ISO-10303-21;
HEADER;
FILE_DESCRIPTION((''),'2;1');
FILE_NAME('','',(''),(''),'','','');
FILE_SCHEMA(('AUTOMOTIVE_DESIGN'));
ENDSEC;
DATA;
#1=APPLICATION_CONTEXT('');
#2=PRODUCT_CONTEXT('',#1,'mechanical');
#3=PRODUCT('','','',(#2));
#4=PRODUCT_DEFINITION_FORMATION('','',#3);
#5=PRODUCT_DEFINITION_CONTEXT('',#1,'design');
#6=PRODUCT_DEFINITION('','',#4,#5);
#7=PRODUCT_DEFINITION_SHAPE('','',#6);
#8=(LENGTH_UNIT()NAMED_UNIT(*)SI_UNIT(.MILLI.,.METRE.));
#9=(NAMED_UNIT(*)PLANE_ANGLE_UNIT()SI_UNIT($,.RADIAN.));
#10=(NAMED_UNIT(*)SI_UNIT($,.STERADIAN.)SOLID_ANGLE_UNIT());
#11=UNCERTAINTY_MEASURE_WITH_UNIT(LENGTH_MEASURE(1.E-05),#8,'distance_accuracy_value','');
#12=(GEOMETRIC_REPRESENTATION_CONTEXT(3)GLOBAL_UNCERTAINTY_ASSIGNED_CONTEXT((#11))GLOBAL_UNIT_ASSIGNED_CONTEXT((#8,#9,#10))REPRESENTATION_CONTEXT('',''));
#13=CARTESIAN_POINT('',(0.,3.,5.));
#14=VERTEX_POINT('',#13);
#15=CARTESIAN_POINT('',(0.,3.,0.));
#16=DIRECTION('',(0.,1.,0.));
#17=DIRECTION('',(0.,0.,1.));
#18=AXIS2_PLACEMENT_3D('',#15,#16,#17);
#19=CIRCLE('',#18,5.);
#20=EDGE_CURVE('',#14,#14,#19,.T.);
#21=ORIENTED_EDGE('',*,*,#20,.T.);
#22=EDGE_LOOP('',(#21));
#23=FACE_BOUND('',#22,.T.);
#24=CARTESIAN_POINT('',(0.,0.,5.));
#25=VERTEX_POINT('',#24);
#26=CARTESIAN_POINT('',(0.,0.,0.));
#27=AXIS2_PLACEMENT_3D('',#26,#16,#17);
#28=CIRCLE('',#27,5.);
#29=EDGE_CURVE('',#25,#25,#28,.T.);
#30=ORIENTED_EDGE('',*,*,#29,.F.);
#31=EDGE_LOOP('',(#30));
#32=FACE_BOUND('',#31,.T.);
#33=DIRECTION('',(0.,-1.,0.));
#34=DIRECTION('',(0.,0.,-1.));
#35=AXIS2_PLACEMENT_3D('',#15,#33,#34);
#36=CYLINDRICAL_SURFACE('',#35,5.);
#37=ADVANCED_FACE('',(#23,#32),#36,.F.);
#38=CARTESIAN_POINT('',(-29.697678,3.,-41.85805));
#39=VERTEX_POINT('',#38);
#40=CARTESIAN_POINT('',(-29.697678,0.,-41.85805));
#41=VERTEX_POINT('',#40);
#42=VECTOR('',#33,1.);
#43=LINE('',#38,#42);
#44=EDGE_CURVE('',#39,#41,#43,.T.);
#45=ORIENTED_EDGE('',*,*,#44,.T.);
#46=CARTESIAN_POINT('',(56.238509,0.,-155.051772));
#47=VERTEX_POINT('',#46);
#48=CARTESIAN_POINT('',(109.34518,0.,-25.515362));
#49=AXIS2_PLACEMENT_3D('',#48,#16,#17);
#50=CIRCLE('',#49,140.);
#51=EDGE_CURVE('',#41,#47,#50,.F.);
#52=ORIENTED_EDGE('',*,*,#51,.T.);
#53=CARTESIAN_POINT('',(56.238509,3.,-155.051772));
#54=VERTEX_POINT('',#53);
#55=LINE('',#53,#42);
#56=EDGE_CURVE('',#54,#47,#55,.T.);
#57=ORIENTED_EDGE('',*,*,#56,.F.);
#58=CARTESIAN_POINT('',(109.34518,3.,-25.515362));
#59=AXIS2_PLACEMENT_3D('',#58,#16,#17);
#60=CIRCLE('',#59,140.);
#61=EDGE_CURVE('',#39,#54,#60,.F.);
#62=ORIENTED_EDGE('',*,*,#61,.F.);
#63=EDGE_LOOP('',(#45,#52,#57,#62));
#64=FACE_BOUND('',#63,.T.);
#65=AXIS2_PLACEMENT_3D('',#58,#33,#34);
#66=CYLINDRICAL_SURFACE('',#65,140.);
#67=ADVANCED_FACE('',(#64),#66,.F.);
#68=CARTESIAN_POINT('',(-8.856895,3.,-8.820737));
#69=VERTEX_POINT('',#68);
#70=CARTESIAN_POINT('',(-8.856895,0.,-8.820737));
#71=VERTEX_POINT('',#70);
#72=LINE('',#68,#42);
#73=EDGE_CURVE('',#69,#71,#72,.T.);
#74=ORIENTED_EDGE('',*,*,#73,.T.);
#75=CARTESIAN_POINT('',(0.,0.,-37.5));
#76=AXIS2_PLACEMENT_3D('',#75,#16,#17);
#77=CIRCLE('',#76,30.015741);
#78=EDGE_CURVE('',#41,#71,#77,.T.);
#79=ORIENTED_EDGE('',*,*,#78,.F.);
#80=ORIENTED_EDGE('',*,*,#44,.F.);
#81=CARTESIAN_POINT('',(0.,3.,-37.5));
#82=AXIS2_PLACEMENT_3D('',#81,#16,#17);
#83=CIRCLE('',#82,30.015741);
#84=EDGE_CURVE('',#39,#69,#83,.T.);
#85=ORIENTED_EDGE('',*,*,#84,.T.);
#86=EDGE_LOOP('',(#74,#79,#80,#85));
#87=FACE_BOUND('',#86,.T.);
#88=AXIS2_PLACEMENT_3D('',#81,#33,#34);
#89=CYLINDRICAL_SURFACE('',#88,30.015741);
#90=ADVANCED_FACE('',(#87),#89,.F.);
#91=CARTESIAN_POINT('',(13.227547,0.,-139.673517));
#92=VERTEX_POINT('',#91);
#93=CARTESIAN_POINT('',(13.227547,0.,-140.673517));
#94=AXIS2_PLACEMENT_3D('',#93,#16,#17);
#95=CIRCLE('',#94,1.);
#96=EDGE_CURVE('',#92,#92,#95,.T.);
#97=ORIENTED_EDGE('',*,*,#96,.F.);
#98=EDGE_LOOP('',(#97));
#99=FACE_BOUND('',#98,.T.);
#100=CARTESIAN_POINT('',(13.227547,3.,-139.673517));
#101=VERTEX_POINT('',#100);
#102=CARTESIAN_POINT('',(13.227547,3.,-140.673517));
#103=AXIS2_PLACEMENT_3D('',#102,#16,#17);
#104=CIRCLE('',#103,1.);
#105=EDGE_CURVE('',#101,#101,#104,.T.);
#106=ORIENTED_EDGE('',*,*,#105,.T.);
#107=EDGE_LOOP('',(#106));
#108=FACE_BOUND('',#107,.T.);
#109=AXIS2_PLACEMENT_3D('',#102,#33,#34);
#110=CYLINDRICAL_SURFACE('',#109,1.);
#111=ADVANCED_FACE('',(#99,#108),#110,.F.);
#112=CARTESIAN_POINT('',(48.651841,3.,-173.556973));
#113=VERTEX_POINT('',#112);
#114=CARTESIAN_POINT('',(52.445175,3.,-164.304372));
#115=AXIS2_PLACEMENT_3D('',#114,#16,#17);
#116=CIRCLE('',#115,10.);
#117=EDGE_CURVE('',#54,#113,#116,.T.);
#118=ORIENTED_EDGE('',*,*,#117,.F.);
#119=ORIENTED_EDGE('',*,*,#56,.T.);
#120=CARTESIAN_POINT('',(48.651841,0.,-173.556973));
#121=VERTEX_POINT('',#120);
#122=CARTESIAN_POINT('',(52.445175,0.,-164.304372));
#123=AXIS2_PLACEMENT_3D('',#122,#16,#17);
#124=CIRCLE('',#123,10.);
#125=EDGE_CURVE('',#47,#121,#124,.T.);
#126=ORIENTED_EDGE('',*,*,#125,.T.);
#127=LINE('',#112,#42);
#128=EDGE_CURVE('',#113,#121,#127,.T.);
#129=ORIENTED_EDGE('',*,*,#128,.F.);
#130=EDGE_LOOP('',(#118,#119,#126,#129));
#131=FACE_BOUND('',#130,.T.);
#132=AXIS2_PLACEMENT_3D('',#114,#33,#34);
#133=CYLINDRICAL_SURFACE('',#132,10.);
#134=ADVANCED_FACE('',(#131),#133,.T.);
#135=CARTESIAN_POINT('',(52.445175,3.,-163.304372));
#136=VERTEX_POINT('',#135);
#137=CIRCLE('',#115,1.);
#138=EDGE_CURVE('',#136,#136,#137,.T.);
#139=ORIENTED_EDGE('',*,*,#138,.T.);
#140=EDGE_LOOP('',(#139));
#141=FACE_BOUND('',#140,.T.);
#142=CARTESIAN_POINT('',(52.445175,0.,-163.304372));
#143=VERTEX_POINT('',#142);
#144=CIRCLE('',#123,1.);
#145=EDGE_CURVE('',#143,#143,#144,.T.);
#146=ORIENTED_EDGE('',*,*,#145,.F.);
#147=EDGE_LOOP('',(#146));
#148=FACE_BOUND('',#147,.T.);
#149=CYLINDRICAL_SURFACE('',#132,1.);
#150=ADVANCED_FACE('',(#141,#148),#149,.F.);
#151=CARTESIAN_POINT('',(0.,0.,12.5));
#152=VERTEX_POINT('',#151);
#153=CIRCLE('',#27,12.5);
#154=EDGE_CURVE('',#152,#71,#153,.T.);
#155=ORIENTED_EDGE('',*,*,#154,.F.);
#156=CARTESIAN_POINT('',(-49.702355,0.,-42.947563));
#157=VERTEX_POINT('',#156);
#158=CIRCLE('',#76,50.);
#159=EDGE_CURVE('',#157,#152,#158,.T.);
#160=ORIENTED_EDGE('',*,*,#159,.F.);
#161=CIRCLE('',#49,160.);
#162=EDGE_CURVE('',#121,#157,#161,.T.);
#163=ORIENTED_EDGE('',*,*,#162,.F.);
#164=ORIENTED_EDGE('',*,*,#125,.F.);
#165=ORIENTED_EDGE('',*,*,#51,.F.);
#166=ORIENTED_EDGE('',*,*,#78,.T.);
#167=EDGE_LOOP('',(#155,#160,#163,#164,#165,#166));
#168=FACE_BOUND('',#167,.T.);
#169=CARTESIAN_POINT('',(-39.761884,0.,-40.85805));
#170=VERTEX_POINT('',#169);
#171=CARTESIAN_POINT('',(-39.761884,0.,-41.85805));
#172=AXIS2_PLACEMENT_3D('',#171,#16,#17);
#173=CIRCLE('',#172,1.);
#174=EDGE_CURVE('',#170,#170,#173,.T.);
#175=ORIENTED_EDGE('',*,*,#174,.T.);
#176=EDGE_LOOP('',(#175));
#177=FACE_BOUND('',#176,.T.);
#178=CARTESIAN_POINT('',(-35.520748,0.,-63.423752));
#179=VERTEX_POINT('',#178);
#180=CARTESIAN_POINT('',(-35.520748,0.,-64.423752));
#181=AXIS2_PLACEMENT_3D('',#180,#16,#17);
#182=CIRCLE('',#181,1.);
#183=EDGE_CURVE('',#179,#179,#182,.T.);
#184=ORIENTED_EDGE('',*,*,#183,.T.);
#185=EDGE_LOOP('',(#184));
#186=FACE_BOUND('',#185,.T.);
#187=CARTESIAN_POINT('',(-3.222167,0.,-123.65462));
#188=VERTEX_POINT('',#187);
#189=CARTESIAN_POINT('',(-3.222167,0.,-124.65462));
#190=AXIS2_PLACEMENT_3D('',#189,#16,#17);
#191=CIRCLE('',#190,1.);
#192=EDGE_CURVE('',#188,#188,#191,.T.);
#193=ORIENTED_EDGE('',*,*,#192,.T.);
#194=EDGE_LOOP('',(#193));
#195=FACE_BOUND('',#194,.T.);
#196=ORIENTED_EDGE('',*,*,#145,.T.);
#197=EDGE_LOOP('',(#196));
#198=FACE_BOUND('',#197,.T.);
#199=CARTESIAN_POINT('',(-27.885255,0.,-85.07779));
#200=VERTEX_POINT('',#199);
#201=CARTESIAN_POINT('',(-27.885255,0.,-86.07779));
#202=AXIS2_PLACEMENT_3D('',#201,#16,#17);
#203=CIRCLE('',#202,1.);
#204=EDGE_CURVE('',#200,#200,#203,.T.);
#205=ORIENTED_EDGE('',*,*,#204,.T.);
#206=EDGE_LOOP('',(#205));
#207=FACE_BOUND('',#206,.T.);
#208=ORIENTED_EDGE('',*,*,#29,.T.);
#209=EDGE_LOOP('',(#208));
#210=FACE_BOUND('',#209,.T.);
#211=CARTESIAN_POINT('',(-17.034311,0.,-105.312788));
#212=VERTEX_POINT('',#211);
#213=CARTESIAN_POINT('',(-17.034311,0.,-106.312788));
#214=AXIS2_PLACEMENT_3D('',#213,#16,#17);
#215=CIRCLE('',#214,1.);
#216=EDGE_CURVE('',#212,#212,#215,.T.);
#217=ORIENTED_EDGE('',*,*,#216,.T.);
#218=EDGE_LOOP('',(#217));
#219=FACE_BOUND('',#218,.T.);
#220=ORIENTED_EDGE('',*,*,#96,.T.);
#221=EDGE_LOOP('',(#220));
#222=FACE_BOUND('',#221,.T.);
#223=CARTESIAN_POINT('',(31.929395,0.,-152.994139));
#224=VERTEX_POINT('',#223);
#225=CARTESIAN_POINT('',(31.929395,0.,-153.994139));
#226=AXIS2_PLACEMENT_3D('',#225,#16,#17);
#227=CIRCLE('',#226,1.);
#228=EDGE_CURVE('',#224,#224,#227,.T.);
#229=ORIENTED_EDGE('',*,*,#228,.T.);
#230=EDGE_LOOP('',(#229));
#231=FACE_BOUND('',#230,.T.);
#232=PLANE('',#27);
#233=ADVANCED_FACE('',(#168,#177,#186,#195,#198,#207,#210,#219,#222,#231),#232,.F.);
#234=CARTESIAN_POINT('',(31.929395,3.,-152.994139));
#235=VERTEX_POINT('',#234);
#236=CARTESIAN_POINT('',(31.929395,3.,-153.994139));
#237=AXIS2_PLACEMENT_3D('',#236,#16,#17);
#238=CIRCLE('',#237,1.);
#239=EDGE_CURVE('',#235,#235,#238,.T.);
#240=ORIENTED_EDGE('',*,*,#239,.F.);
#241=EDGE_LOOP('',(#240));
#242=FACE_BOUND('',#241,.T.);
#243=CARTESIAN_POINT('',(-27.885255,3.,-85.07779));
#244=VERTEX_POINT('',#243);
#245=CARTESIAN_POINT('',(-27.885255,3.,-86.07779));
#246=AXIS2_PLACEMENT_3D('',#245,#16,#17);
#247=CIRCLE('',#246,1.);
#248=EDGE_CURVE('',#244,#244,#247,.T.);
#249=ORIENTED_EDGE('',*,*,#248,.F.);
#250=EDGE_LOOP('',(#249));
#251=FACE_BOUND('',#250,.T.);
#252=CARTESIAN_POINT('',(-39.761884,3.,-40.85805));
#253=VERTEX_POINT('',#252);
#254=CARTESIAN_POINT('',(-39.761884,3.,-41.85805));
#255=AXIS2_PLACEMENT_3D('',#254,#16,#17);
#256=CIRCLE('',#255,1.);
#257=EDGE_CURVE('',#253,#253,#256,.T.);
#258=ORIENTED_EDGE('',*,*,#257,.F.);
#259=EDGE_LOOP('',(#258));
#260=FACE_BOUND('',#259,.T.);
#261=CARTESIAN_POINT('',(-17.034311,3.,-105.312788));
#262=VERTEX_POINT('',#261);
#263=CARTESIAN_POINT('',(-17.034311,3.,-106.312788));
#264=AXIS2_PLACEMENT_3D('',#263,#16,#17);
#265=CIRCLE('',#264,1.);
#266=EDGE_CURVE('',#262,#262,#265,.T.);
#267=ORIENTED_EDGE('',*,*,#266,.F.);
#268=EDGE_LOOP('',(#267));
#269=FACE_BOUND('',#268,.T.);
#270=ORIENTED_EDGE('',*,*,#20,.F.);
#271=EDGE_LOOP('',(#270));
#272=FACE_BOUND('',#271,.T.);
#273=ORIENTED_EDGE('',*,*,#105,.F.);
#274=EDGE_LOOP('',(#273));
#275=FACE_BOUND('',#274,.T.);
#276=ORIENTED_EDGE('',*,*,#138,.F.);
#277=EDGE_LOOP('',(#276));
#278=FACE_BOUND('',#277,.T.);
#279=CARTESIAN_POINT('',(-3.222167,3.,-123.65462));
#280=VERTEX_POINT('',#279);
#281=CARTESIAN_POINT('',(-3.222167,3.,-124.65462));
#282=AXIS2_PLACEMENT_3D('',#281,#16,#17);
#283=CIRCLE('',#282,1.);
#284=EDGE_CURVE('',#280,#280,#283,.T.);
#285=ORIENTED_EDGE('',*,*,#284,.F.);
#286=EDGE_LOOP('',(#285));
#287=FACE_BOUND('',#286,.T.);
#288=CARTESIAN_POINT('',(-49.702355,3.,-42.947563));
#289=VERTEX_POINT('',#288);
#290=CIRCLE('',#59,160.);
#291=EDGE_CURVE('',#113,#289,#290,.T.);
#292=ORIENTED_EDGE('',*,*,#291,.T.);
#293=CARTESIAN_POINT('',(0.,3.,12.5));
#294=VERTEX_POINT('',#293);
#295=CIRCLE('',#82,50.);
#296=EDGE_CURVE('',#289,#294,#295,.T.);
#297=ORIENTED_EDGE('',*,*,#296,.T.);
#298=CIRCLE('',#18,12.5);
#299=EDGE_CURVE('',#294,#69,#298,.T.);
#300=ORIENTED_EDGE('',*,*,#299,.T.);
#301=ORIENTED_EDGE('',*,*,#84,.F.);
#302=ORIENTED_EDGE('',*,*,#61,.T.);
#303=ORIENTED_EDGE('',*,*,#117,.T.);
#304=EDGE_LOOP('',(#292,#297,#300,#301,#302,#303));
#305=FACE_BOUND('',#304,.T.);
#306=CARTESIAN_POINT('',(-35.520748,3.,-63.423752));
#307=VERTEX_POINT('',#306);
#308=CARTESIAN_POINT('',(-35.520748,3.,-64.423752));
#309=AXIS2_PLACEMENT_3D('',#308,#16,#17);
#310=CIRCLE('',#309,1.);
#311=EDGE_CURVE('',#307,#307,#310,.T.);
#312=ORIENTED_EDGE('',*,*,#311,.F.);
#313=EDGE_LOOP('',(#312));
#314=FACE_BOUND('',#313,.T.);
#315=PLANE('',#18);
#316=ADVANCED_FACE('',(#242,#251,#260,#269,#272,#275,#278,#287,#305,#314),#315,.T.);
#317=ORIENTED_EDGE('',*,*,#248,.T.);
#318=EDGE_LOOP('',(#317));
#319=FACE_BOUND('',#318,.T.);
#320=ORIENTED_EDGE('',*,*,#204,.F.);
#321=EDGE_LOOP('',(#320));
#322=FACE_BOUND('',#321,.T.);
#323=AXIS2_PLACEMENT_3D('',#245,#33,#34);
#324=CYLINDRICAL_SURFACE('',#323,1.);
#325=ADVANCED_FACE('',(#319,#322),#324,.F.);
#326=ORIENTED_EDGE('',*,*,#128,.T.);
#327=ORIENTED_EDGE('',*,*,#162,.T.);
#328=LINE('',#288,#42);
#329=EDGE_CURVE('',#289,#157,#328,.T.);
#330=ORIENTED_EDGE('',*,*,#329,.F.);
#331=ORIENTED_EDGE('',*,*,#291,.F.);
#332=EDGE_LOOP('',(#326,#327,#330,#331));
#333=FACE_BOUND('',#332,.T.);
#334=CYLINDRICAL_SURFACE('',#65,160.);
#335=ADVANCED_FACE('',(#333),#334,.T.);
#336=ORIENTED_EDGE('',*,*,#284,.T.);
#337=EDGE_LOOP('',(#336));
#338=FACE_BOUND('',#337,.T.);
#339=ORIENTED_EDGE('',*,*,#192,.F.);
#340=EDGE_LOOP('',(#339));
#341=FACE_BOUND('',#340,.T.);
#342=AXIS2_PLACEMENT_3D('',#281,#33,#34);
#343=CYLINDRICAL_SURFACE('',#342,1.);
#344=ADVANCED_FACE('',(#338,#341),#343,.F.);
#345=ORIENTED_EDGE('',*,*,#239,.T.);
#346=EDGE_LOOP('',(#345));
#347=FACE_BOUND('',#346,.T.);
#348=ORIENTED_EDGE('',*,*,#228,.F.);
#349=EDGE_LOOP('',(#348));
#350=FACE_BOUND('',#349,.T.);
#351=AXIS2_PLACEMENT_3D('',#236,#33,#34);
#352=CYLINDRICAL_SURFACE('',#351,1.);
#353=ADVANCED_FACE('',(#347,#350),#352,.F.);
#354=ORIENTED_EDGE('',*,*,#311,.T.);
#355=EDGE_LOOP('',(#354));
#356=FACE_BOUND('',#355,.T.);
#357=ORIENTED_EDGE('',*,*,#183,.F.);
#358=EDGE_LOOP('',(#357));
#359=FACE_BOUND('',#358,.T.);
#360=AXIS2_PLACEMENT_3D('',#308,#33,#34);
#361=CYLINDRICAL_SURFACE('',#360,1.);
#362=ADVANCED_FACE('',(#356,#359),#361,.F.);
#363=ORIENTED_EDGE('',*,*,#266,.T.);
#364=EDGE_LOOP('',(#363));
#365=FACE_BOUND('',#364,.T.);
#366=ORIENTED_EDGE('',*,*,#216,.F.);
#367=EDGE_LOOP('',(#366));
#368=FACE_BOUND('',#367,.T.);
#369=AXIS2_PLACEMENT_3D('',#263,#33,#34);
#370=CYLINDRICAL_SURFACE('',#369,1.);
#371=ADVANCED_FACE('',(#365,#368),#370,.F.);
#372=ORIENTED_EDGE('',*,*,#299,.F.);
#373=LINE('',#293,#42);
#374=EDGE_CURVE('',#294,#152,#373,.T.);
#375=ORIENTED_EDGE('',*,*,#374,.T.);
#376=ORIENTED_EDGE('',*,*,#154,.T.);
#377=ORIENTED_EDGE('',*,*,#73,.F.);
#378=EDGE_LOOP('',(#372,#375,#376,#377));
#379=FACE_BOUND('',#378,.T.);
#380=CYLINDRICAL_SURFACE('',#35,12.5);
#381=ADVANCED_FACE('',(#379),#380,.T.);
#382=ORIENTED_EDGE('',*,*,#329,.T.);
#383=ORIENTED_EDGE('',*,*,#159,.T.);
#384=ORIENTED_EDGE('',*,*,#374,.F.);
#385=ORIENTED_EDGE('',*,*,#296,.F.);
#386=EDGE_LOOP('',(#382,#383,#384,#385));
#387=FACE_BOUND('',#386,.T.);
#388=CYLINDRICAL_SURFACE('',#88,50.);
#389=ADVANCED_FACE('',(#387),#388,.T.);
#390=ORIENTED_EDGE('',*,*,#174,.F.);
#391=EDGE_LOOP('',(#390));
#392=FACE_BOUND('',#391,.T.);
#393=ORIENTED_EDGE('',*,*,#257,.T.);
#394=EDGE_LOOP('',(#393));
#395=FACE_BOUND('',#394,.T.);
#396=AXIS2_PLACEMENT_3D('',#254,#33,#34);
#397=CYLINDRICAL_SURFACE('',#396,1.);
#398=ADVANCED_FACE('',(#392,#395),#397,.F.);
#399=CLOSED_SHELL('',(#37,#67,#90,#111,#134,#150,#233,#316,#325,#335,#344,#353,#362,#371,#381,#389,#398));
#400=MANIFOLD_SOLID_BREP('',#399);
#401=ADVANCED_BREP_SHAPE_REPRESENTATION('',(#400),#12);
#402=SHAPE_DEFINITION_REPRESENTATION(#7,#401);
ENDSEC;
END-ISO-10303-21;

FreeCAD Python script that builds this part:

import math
import FreeCAD as App
import Part
import Sketcher

doc = App.newDocument("Part")
params = doc.addObject("Spreadsheet::Sheet", "Params")
for row, (alias, value) in enumerate([
    ("sketch1_diameter", "2 mm"),
    ("sketch1_diameter2", "10 mm"),
    ("sketch1_radius", "50 mm"),
    ("sketch1_radius2", "140 mm"),
    ("sketch1_radius3", "10 mm"),
    ("pad1_length", "3 mm"),
], start=1):
    params.set(f"A{row}", alias)
    params.set(f"B{row}", "=" + value)
    params.setAlias(f"B{row}", alias)

body = doc.addObject("PartDesign::Body", "Body")

# Sketch on XZ plane
sketch1 = doc.addObject("Sketcher::SketchObject", "Sketch")
body.addObject(sketch1)
sketch1.AttachmentSupport = (doc.XZ_Plane, [""])
sketch1.MapMode = "FlatFace"
sketch1.addGeometry(Part.ArcOfCircle(Part.Circle(App.Vector(0, -37.5, 0), App.Vector(0, 0, 1), 50), math.radians(90), math.radians(186)), False)
sketch1.addGeometry(Part.ArcOfCircle(Part.Circle(App.Vector(0, 0, 0), App.Vector(0, 0, 1), 12.5), math.radians(-135), math.radians(90)), False)
sketch1.addGeometry(Part.ArcOfCircle(Part.Circle(App.Vector(0, -37.5, 0), App.Vector(0, 0, 1), 30), math.radians(107), math.radians(188)), False)
sketch1.addGeometry(Part.ArcOfCircle(Part.Circle(App.Vector(109.3, -25.5, 0), App.Vector(0, 0, 1), 140), math.radians(-173), math.radians(-112)), False)
sketch1.addGeometry(Part.ArcOfCircle(Part.Circle(App.Vector(52.4, -164.3, 0), App.Vector(0, 0, 1), 10), math.radians(-112), math.radians(68)), False)
sketch1.addGeometry(Part.ArcOfCircle(Part.Circle(App.Vector(109.3, -25.5, 0), App.Vector(0, 0, 1), 160), math.radians(-174), math.radians(-112)), False)
sketch1.addGeometry(Part.Circle(App.Vector(-39.8, -41.9, 0), App.Vector(0, 0, 1), 1), False)
sketch1.addGeometry(Part.Circle(App.Vector(-35.5, -64.4, 0), App.Vector(0, 0, 1), 1), False)
sketch1.addGeometry(Part.Circle(App.Vector(-27.9, -86.1, 0), App.Vector(0, 0, 1), 1), False)
sketch1.addGeometry(Part.Circle(App.Vector(-17, -106.3, 0), App.Vector(0, 0, 1), 1), False)
sketch1.addGeometry(Part.Circle(App.Vector(-3.2, -124.7, 0), App.Vector(0, 0, 1), 1), False)
sketch1.addGeometry(Part.Circle(App.Vector(13.2, -140.7, 0), App.Vector(0, 0, 1), 1), False)
sketch1.addGeometry(Part.Circle(App.Vector(31.9, -154, 0), App.Vector(0, 0, 1), 1), False)
sketch1.addGeometry(Part.Circle(App.Vector(0, 0, 0), App.Vector(0, 0, 1), 5), False)
sketch1.addGeometry(Part.Circle(App.Vector(52.4, -164.3, 0), App.Vector(0, 0, 1), 1), False)
sketch1.addConstraint(Sketcher.Constraint("Tangent", 0, 1, 1, 2))
sketch1.addConstraint(Sketcher.Constraint("Coincident", 1, 1, 2, 1))
sketch1.addConstraint(Sketcher.Constraint("Coincident", 2, 2, 3, 1))
sketch1.addConstraint(Sketcher.Constraint("Tangent", 3, 2, 4, 2))
sketch1.addConstraint(Sketcher.Constraint("Tangent", 4, 1, 5, 2))
sketch1.addConstraint(Sketcher.Constraint("Tangent", 5, 1, 0, 2))
sketch1.addConstraint(Sketcher.Constraint("Coincident", 1, 3, -1, 1))
sketch1.addConstraint(Sketcher.Constraint("Coincident", 13, 3, -1, 1))
sketch1.addConstraint(Sketcher.Constraint("Coincident", 2, 3, 0, 3))
sketch1.addConstraint(Sketcher.Constraint("Coincident", 5, 3, 3, 3))
sketch1.addConstraint(Sketcher.Constraint("Coincident", 14, 3, 4, 3))
sketch1.addConstraint(Sketcher.Constraint("Equal", 6, 7))
sketch1.addConstraint(Sketcher.Constraint("Equal", 7, 8))
sketch1.addConstraint(Sketcher.Constraint("Equal", 8, 9))
sketch1.addConstraint(Sketcher.Constraint("Equal", 9, 10))
sketch1.addConstraint(Sketcher.Constraint("Equal", 10, 11))
sketch1.addConstraint(Sketcher.Constraint("Equal", 11, 12))
sketch1.addConstraint(Sketcher.Constraint("Equal", 12, 14))
sketch1.addConstraint(Sketcher.Constraint("PointOnObject", 0, 3, -2))
sketch1.addConstraint(Sketcher.Constraint("Horizontal", 6, 3, 2, 2))
sketch1.addConstraint(Sketcher.Constraint("Diameter", 6, 2.0))
sketch1.addConstraint(Sketcher.Constraint("Diameter", 13, 10.0))
sketch1.addConstraint(Sketcher.Constraint("Radius", 0, 50.0))
sketch1.addConstraint(Sketcher.Constraint("Radius", 3, 140.0))
sketch1.addConstraint(Sketcher.Constraint("Radius", 4, 10.0))
sketch1.addConstraint(Sketcher.Constraint("Radius", 1, 12.5))
sketch1.addConstraint(Sketcher.Constraint("Radius", 2, 30.015741))
sketch1.addConstraint(Sketcher.Constraint("DistanceY", 9, 3, 8, 3, 20.234998))
sketch1.addConstraint(Sketcher.Constraint("DistanceY", 7, 3, 6, 3, 22.565702))
sketch1.addConstraint(Sketcher.Constraint("DistanceX", 8, 3, 11, 3, 41.112802))
sketch1.addConstraint(Sketcher.Constraint("DistanceY", 4, 1, 4, 3, 9.252601))
sketch1.addConstraint(Sketcher.Constraint("DistanceX", 5, 1, 8, 3, 21.8171))
sketch1.addConstraint(Sketcher.Constraint("DistanceX", -1, 1, 3, 3, 109.34518))
sketch1.addConstraint(Sketcher.Constraint("DistanceX", 7, 3, -1, 1, 35.520748))
sketch1.addConstraint(Sketcher.Constraint("DistanceY", 8, 3, -1, 1, 86.07779))
sketch1.addConstraint(Sketcher.Constraint("DistanceX", 9, 3, -1, 1, 17.034311))
sketch1.addConstraint(Sketcher.Constraint("DistanceY", 10, 3, -1, 1, 124.65462))
sketch1.addConstraint(Sketcher.Constraint("DistanceY", 12, 3, -1, 1, 153.994139))
sketch1.addConstraint(Sketcher.Constraint("DistanceX", 6, 3, 8, 3, 11.876629))
sketch1.addConstraint(Sketcher.Constraint("DistanceX", 8, 3, 10, 3, 24.663088))
sketch1.addConstraint(Sketcher.Constraint("DistanceY", 11, 3, 9, 3, 34.360728))
sketch1.addConstraint(Sketcher.Constraint("DistanceX", 12, 3, 4, 3, 20.51578))
sketch1.setExpression("Constraints[20]", "Params.sketch1_diameter")
sketch1.setExpression("Constraints[21]", "Params.sketch1_diameter2")
sketch1.setExpression("Constraints[22]", "Params.sketch1_radius")
sketch1.setExpression("Constraints[23]", "Params.sketch1_radius2")
sketch1.setExpression("Constraints[24]", "Params.sketch1_radius3")
pad1 = doc.addObject("PartDesign::Pad", "Pad")
body.addObject(pad1)
pad1.Profile = sketch1
pad1.setExpression("Length", "Params.pad1_length")
pad1.Reversed = True

doc.recompute()
